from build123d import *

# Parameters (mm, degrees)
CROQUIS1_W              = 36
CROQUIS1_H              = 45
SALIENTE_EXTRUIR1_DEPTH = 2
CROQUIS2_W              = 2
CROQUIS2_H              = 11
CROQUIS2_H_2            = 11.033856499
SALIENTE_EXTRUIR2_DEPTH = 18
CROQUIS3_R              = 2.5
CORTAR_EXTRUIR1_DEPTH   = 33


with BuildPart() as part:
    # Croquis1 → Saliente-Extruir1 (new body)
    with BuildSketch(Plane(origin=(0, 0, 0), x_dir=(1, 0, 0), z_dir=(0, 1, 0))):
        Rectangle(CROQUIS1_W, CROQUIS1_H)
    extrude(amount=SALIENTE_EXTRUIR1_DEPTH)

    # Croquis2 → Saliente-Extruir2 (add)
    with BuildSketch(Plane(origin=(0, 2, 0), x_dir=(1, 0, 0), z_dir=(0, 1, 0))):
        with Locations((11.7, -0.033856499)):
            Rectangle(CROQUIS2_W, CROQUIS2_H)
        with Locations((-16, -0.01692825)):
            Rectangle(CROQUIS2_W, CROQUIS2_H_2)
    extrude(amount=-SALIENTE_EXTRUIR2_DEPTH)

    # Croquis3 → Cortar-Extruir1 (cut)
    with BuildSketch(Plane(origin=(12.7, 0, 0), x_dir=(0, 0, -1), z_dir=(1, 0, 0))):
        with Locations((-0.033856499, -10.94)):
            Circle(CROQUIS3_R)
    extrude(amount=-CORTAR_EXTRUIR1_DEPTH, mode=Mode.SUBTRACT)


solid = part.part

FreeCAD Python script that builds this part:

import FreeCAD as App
import Part
import Sketcher


def add_polygon(sketch, points):
    """Adds a closed chain of lines whose ends are joined by coincident constraints."""
    first, n = sketch.GeometryCount, len(points)
    for a, b in zip(points, points[1:] + points[:1]):
        sketch.addGeometry(Part.LineSegment(App.Vector(*a, 0), App.Vector(*b, 0)), False)
    for i in range(n):
        sketch.addConstraint(Sketcher.Constraint("Coincident", first + i, 2, first + (i + 1) % n, 1))

doc = App.newDocument("Part")
body = doc.addObject("PartDesign::Body", "Body")

sketch1 = body.newObject("Sketcher::SketchObject", "Sketch")
sketch1.AttachmentSupport = (doc.getObject("XZ_Plane"), [""])
sketch1.MapMode = "FlatFace"
add_polygon(sketch1, [(-18, -22), (-18, 22), (18, 22), (18, -22)])
sketch1.addConstraint(Sketcher.Constraint("Vertical", 0))
sketch1.addConstraint(Sketcher.Constraint("Horizontal", 1))
sketch1.addConstraint(Sketcher.Constraint("Vertical", 2))
sketch1.addConstraint(Sketcher.Constraint("Horizontal", 3))
sketch1.addConstraint(Sketcher.Constraint("Symmetric", 0, 2, 2, 2, -1, 1))
sketch1.addConstraint(Sketcher.Constraint("DistanceX", 1, 1, 1, 2, 36.0))
sketch1.addConstraint(Sketcher.Constraint("DistanceY", 0, 1, 0, 2, 45.0))
pad1 = body.newObject("PartDesign::Pad", "Pad")
pad1.Profile = sketch1
pad1.Length = 2
pad1.Reversed = True

sketch2 = body.newObject("Sketcher::SketchObject", "Sketch001")
sketch2.AttachmentSupport = (doc.getObject("XZ_Plane"), [""])
sketch2.MapMode = "FlatFace"
sketch2.AttachmentOffset = App.Placement(App.Vector(0, 0, -2), App.Rotation())
add_polygon(sketch2, [(10.7, -5.5), (10.7, 5.5), (12.7, 5.5), (12.7, -5.5)])
add_polygon(sketch2, [(-17, -5.5), (-17, 5.5), (-15, 5.5), (-15, -5.5)])
sketch2.addConstraint(Sketcher.Constraint("Vertical", 0))
sketch2.addConstraint(Sketcher.Constraint("Horizontal", 1))
sketch2.addConstraint(Sketcher.Constraint("Vertical", 2))
sketch2.addConstraint(Sketcher.Constraint("Horizontal", 3))
sketch2.addConstraint(Sketcher.Constraint("Vertical", 4))
sketch2.addConstraint(Sketcher.Constraint("Horizontal", 5))
sketch2.addConstraint(Sketcher.Constraint("Vertical", 6))
sketch2.addConstraint(Sketcher.Constraint("Horizontal", 7))
sketch2.addConstraint(Sketcher.Constraint("Horizontal", 1, 2, 4, 2))
sketch2.addConstraint(Sketcher.Constraint("Equal", 3, 5))
sketch2.addConstraint(Sketcher.Constraint("DistanceX", 1, 1, 1, 2, 2.0))
sketch2.addConstraint(Sketcher.Constraint("DistanceY", 0, 1, 0, 2, 11.0))
sketch2.addConstraint(Sketcher.Constraint("DistanceX", 4, 2, -1, 1, 17.0))
sketch2.addConstraint(Sketcher.Constraint("DistanceX", -1, 1, 0, 2, 10.7))
sketch2.addConstraint(Sketcher.Constraint("DistanceY", 6, 2, -1, 1, 5.5))
sketch2.addConstraint(Sketcher.Constraint("DistanceY", 4, 1, 4, 2, 11.033856))
pad2 = body.newObject("PartDesign::Pad", "Pad001")
pad2.Profile = sketch2
pad2.Length = 18

sketch3 = body.newObject("Sketcher::SketchObject", "Sketch002")
sketch3.AttachmentSupport = (doc.getObject("YZ_Plane"), [""])
sketch3.MapMode = "FlatFace"
sketch3.AttachmentOffset = App.Placement(App.Vector(0, 0, 12.7), App.Rotation())
sketch3.addGeometry(Part.Circle(App.Vector(-10.9, 0, 0), App.Vector(0, 0, 1), 2.5), False)
sketch3.addConstraint(Sketcher.Constraint("Diameter", 0, 5.0))
sketch3.addConstraint(Sketcher.Constraint("DistanceX", 0, 3, -1, 1, 10.94))
sketch3.addConstraint(Sketcher.Constraint("DistanceY", -1, 1, 0, 3, 0.033856))
pocket1 = body.newObject("PartDesign::Pocket", "Pocket")
pocket1.Profile = sketch3
pocket1.Length = 33

doc.recompute()
